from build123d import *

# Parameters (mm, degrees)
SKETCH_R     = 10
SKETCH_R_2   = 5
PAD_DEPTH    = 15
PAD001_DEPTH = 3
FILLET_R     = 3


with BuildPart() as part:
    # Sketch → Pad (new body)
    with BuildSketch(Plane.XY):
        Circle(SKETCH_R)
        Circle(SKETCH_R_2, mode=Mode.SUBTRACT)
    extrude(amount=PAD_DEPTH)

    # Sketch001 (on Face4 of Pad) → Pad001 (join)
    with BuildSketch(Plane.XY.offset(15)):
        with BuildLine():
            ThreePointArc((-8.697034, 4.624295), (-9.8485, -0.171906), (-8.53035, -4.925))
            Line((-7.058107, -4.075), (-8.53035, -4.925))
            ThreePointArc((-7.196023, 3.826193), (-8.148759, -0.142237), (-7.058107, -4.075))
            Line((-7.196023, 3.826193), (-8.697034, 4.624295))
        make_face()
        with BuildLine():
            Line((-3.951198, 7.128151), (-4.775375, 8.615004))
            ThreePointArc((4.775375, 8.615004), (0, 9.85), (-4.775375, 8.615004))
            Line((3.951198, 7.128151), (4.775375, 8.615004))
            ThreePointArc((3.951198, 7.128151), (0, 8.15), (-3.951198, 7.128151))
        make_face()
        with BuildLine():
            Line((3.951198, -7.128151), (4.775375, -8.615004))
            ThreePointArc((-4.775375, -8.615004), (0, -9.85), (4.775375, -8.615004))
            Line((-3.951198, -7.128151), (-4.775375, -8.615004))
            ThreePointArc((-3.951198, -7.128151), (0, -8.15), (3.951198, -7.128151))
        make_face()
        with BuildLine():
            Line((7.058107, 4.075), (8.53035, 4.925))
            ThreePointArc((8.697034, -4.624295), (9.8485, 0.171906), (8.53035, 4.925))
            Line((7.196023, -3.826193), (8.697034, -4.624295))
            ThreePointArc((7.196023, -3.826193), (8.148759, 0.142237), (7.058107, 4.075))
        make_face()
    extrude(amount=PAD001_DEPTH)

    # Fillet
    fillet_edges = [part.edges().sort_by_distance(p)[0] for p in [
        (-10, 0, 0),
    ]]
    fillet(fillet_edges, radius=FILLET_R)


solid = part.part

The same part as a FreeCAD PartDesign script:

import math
import FreeCAD as App
import Part
import Sketcher

V = App.Vector
Q = App.Units.Quantity


def edges_at(feature, points):
    """Names of the edges that pass closest to the given points."""
    edges = feature.Shape.Edges
    near = lambda p: min(range(len(edges)), key=lambda i: edges[i].distToShape(Part.Vertex(*p))[0])
    return sorted({f"Edge{near(p) + 1}" for p in points})

doc = App.newDocument("Part")
params = doc.addObject("Spreadsheet::Sheet", "Params")
for row, (alias, value) in enumerate([
    ("sketch1_diameter", "20 mm"),
    ("sketch1_diameter2", "10 mm"),
    ("pad1_length", "15 mm"),
    ("sketch2_radius", "9.849999 mm"),
    ("sketch2_radius2", "8.150001 mm"),
    ("pad2_length", "3 mm"),
    ("fillet_radius", "3 mm"),
], start=1):
    params.set(f"A{row}", alias)
    params.set(f"B{row}", "=" + value)
    params.setAlias(f"B{row}", alias)

body = doc.addObject("PartDesign::Body", "Body")

# Sketch on XY plane
sketch1 = body.newObject("Sketcher::SketchObject", "Sketch")
sketch1.AttachmentSupport = (doc.getObject("XY_Plane"), [""])
sketch1.MapMode = "FlatFace"
sketch1.addGeometry([
    Part.Circle(V(0, 0, 0), V(0, 0, 1), 10),
    Part.Circle(V(0, 0, 0), V(0, 0, 1), 5),
], False)
sketch1.addConstraint([
    Sketcher.Constraint("Coincident", 0, 3, -1, 1),
    Sketcher.Constraint("Coincident", 1, 3, -1, 1),
    Sketcher.Constraint("Diameter", 0, 20.0),
    Sketcher.Constraint("Diameter", 1, 10.0),
])
sketch1.setExpression("Constraints[2]", "Params.sketch1_diameter")
sketch1.setExpression("Constraints[3]", "Params.sketch1_diameter2")
pad1 = body.newObject("PartDesign::Pad", "Pad")
pad1.Profile = sketch1
pad1.setExpression("Length", "Params.pad1_length")

# Sketch on XY plane
sketch2 = body.newObject("Sketcher::SketchObject", "Sketch001")
sketch2.AttachmentSupport = (doc.getObject("XY_Plane"), [""])
sketch2.MapMode = "FlatFace"
sketch2.AttachmentOffset = App.Placement(V(0, 0, 15), App.Rotation())
sketch2.addGeometry([
    Part.ArcOfCircle(Part.Circle(V(-0.000001, 0, 0), V(0, 0, 1), 9.849999), math.radians(151.999998), math.radians(210.000007)),  # 0
    Part.LineSegment(V(-8.53035, -4.925, 0), V(-7.058107, -4.075, 0)),  # 1
    Part.ArcOfCircle(Part.Circle(V(-0.000002, 0, 0), V(0, 0, 1), 8.149998), math.radians(151.999994), math.radians(210.000009)),  # 2
    Part.LineSegment(V(-7.196023, 3.826193, 0), V(-8.697034, 4.624295, 0)),  # 3
    Part.LineSegment(V(-4.775375, 8.615004, 0), V(-3.951198, 7.128151, 0)),  # 4
    Part.ArcOfCircle(Part.Circle(V(0, -0.000001, 0), V(0, 0, 1), 8.150001), math.radians(61.000008), math.radians(118.999992)),  # 5
    Part.LineSegment(V(3.951198, 7.128151, 0), V(4.775375, 8.615004, 0)),  # 6
    Part.ArcOfCircle(Part.Circle(V(0, 0, 0), V(0, 0, 1), 9.85), math.radians(60.999999), math.radians(119.000001)),  # 7
    Part.LineSegment(V(4.775375, -8.615004, 0), V(3.951198, -7.128151, 0)),  # 8
    Part.ArcOfCircle(Part.Circle(V(0, 0.000001, 0), V(0, 0, 1), 8.150001), math.radians(-118.999992), math.radians(-61.000008)),  # 9
    Part.LineSegment(V(-3.951198, -7.128151, 0), V(-4.775375, -8.615004, 0)),  # 10
    Part.ArcOfCircle(Part.Circle(V(0, 0, 0), V(0, 0, 1), 9.85), math.radians(-119.000001), math.radians(-60.999999)),  # 11
    Part.LineSegment(V(8.53035, 4.925, 0), V(7.058107, 4.075, 0)),  # 12
    Part.ArcOfCircle(Part.Circle(V(0.000002, 0, 0), V(0, 0, 1), 8.149998), math.radians(-28.000006), math.radians(30.000009)),  # 13
    Part.LineSegment(V(7.196023, -3.826193, 0), V(8.697034, -4.624295, 0)),  # 14
    Part.ArcOfCircle(Part.Circle(V(0.000001, 0, 0), V(0, 0, 1), 9.849999), math.radians(-28.000002), math.radians(30.000007)),  # 15
], False)
sketch2.addConstraint([
    Sketcher.Constraint("Coincident", 0, 2, 1, 1),
    Sketcher.Constraint("Coincident", 1, 2, 2, 2),
    Sketcher.Constraint("Coincident", 2, 1, 3, 1),
    Sketcher.Constraint("Coincident", 3, 2, 0, 1),
    Sketcher.Constraint("Coincident", 4, 2, 5, 2),
    Sketcher.Constraint("Coincident", 5, 1, 6, 1),
    Sketcher.Constraint("Coincident", 6, 2, 7, 1),
    Sketcher.Constraint("Coincident", 7, 2, 4, 1),
    Sketcher.Constraint("Coincident", 8, 2, 9, 2),
    Sketcher.Constraint("Coincident", 9, 1, 10, 1),
    Sketcher.Constraint("Coincident", 10, 2, 11, 1),
    Sketcher.Constraint("Coincident", 11, 2, 8, 1),
    Sketcher.Constraint("Coincident", 12, 2, 13, 2),
    Sketcher.Constraint("Coincident", 13, 1, 14, 1),
    Sketcher.Constraint("Coincident", 14, 2, 15, 1),
    Sketcher.Constraint("Coincident", 15, 2, 12, 1),
    Sketcher.Constraint("Coincident", 0, 3, -1, 1),
    Sketcher.Constraint("Coincident", 2, 3, -1, 1),
    Sketcher.Constraint("Coincident", 5, 3, -1, 1),
    Sketcher.Constraint("Coincident", 7, 3, -1, 1),
    Sketcher.Constraint("Coincident", 9, 3, -1, 1),
    Sketcher.Constraint("Coincident", 11, 3, -1, 1),
    Sketcher.Constraint("Coincident", 13, 3, -1, 1),
    Sketcher.Constraint("Coincident", 15, 3, -1, 1),
    Sketcher.Constraint("Equal", 0, 7),
    Sketcher.Constraint("Equal", 5, 9),
    Sketcher.Constraint("Equal", 7, 11),
    Sketcher.Constraint("Equal", 2, 13),
    Sketcher.Constraint("Equal", 11, 15),
    Sketcher.Constraint("Parallel", 4, 8),
    Sketcher.Constraint("Parallel", 6, 10),
    Sketcher.Constraint("Parallel", 1, 12),
    Sketcher.Constraint("Parallel", 3, 14),
    Sketcher.Constraint("Horizontal", 4, 2, 5, 1),
    Sketcher.Constraint("Horizontal", 6, 2, 7, 2),
    Sketcher.Constraint("Horizontal", 8, 2, 9, 1),
    Sketcher.Constraint("Vertical", 5, 1, 8, 2),
    Sketcher.Constraint("Equal", 3, 4),
    Sketcher.Constraint("Angle", 1, Q("30.000003 deg")),
    Sketcher.Constraint("Angle", 3, Q("151.999991 deg")),
    Sketcher.Constraint("Radius", 0, 9.849999),
    Sketcher.Constraint("Radius", 5, 8.150001),
    Sketcher.Constraint("DistanceY", 0, 2, -1, 1, 4.925),
    Sketcher.Constraint("DistanceY", -1, 1, 12, 2, 4.075),
    Sketcher.Constraint("DistanceX", 4, 2, -1, 1, 3.951198),
    Sketcher.Constraint("DistanceX", 2, 1, 2, 3, 7.196021),
    Sketcher.Constraint("DistanceX", 2, 1, 7, 2, 2.420648),
    Sketcher.Constraint("DistanceX", 11, 2, 13, 1, 2.420648),
])
sketch2.setExpression("Constraints[40]", "Params.sketch2_radius")
sketch2.setExpression("Constraints[41]", "Params.sketch2_radius2")
pad2 = body.newObject("PartDesign::Pad", "Pad001")
pad2.Profile = sketch2
pad2.setExpression("Length", "Params.pad2_length")
doc.recompute()

fillet = body.newObject("PartDesign::Fillet", "Fillet")
fillet.Base = (pad2, edges_at(pad2, [(-10, 0, 0)]))
fillet.setExpression("Radius", "Params.fillet_radius")

doc.recompute()
